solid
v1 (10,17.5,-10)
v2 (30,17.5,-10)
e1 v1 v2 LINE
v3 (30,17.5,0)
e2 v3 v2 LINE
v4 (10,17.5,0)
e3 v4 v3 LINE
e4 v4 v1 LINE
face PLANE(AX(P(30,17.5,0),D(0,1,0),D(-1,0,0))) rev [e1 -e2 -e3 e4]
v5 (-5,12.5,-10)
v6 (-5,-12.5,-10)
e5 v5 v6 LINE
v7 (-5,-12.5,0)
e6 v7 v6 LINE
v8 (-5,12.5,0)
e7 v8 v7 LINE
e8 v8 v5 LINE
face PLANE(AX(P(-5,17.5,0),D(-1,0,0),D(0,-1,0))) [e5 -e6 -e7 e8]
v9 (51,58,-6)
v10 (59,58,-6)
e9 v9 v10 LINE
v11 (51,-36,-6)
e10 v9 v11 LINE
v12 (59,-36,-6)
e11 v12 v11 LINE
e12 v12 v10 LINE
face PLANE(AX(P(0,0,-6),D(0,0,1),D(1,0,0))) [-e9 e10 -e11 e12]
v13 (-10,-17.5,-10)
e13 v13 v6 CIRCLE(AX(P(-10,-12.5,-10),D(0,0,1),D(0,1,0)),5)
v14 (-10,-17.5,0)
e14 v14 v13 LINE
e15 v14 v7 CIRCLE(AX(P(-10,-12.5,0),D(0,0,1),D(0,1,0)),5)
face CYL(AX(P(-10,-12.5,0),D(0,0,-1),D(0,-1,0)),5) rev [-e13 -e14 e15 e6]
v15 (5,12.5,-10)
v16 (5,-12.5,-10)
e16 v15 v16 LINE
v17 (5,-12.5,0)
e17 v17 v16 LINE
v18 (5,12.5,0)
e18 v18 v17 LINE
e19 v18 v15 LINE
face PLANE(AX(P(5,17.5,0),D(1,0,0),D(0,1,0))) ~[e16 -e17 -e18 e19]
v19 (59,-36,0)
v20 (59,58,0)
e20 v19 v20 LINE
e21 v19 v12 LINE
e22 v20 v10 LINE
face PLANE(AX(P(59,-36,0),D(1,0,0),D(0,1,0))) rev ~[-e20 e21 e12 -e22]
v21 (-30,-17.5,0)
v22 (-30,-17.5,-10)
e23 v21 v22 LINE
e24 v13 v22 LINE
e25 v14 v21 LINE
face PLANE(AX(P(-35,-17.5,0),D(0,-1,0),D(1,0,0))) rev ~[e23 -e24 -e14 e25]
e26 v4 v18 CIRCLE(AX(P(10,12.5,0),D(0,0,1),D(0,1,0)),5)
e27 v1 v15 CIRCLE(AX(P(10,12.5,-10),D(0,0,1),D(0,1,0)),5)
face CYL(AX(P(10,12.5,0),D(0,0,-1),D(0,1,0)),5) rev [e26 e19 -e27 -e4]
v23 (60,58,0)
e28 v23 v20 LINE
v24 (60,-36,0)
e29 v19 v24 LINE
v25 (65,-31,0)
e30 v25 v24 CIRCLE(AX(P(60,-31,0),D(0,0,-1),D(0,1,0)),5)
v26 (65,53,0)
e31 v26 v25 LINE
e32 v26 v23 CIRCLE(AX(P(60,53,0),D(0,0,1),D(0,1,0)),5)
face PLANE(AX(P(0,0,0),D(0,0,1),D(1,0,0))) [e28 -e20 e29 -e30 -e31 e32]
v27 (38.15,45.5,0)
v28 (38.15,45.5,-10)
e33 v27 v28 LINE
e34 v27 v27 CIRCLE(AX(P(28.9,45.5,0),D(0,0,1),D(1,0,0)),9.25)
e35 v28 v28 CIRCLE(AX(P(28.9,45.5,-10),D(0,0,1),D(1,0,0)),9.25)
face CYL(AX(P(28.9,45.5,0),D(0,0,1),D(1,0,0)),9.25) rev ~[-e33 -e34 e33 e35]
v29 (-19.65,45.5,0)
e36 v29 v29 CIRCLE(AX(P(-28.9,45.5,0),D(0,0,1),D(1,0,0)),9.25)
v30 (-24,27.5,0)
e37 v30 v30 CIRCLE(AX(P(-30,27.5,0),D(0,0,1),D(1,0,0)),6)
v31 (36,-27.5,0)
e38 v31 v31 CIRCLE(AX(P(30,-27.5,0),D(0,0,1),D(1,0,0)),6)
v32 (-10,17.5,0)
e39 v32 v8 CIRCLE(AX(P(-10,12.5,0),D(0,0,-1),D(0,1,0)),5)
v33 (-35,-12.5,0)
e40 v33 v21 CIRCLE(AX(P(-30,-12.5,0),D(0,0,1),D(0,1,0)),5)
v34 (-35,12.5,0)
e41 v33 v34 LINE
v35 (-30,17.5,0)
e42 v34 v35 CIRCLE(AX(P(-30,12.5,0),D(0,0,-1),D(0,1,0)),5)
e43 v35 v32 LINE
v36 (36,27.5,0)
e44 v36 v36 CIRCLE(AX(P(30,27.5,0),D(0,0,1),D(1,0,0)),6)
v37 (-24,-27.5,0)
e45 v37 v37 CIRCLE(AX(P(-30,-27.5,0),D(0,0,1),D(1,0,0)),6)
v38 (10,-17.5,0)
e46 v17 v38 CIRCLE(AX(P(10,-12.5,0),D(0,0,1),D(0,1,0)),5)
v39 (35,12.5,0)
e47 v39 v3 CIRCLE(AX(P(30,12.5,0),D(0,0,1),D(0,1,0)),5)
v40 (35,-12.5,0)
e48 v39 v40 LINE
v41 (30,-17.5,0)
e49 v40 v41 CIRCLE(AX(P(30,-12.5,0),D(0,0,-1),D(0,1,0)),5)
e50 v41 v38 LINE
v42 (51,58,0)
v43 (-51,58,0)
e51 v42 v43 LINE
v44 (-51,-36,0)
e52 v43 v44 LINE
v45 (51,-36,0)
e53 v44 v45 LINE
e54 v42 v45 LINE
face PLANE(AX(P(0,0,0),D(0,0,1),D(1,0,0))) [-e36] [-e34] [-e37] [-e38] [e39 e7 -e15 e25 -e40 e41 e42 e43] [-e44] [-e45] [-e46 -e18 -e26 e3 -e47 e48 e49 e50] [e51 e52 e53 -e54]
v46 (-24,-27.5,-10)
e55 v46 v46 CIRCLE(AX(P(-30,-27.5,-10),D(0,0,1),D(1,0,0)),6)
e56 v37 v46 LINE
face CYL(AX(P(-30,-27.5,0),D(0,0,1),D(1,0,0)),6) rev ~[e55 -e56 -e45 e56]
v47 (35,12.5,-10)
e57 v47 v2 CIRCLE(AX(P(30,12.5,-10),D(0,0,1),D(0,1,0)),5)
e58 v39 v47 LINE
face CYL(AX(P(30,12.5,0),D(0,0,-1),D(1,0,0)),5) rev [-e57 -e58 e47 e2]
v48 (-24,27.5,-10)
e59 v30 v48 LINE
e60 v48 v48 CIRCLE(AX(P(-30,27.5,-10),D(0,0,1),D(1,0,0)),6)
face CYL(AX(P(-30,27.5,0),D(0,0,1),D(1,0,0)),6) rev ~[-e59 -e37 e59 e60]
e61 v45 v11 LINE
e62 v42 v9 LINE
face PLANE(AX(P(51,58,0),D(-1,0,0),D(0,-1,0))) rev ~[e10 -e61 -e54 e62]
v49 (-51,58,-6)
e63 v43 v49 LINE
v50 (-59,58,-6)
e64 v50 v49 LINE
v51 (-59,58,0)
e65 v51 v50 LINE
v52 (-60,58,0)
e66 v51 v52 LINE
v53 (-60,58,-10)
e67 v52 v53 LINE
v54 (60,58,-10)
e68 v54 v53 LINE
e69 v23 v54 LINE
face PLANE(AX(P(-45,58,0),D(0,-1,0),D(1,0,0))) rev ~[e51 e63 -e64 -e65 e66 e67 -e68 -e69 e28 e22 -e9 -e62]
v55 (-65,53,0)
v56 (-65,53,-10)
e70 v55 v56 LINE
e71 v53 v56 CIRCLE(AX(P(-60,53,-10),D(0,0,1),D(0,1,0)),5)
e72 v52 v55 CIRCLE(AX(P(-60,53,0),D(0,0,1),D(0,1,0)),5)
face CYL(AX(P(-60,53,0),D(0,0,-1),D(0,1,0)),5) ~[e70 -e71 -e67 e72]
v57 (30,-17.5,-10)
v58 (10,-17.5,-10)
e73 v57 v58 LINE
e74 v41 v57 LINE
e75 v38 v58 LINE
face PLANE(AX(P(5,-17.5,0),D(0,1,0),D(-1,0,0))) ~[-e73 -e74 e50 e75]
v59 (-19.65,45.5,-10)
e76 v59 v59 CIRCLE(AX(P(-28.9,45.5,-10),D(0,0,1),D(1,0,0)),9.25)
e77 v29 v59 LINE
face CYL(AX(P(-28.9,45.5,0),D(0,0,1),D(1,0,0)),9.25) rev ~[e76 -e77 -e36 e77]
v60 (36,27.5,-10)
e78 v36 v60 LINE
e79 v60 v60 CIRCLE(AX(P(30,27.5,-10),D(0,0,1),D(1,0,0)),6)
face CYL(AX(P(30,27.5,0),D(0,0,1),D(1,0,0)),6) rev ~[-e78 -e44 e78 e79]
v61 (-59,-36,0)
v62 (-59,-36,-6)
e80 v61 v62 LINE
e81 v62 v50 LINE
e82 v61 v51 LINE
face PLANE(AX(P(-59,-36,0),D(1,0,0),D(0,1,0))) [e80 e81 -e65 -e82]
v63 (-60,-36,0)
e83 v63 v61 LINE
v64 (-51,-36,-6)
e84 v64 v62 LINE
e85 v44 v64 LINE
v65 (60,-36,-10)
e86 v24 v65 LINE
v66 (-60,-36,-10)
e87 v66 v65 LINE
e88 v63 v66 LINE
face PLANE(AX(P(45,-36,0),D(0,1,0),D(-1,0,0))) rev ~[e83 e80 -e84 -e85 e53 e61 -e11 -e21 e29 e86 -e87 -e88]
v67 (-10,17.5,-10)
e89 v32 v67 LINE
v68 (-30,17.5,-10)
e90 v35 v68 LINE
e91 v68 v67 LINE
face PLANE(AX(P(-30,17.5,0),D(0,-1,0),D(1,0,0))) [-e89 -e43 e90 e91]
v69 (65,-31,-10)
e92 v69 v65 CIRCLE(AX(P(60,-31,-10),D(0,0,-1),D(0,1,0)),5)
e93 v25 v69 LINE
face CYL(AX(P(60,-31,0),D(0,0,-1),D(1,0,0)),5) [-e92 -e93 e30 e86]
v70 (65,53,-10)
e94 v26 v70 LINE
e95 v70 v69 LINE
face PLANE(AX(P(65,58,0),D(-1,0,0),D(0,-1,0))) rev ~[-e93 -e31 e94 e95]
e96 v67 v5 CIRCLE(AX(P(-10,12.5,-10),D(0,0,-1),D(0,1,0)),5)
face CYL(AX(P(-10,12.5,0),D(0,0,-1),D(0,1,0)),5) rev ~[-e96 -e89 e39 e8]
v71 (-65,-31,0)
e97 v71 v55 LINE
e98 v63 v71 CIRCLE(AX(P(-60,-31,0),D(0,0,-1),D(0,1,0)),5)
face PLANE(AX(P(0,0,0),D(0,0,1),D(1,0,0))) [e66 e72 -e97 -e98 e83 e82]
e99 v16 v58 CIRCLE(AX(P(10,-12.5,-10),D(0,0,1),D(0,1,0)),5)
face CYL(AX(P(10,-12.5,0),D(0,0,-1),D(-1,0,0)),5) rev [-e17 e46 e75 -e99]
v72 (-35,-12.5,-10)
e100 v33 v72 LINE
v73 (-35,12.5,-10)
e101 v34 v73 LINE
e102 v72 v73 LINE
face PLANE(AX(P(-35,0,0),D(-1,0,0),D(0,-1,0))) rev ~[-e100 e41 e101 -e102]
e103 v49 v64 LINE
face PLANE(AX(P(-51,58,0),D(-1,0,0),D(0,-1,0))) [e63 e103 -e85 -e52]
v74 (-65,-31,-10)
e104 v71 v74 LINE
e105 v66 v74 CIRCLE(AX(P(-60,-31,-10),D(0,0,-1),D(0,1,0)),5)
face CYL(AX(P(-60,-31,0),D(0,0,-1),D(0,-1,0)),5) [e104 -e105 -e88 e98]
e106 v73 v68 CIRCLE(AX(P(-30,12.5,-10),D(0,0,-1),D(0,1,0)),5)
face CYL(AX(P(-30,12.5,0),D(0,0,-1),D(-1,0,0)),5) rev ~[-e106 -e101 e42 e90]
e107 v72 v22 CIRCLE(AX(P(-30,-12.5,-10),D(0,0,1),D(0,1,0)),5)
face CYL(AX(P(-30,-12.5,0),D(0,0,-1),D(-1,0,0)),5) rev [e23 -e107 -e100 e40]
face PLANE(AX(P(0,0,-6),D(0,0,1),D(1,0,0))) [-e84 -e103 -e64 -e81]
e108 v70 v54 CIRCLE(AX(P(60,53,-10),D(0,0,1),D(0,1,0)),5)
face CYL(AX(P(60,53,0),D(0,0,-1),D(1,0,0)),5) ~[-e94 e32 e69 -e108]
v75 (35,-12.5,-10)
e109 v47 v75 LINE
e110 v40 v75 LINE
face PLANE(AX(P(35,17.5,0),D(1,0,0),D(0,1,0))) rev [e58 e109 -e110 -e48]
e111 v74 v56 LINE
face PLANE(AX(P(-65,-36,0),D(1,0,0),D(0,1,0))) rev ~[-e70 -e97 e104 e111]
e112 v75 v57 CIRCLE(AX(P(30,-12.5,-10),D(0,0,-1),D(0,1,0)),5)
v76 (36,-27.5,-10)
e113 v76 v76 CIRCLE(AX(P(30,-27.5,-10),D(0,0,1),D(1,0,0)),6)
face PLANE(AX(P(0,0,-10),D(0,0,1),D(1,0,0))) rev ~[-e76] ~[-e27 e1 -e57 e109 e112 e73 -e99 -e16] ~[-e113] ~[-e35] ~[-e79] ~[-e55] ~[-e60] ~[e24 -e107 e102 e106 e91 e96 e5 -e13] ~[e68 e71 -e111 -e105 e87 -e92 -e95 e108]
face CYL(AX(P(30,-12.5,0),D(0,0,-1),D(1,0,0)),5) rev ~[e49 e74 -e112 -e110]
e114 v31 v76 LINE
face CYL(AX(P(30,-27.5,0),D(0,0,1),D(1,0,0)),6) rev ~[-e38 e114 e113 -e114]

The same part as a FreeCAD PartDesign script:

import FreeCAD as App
import Part
import Sketcher
from FreeCAD import Vector


def edges_at(feature, points):
    """Names of the edges that pass closest to the given points."""
    edges = feature.Shape.Edges
    near = lambda p: min(range(len(edges)), key=lambda i: edges[i].distToShape(Part.Vertex(*p))[0])
    return sorted({f"Edge{near(p) + 1}" for p in points})


def add_polygon(sketch, points):
    """Adds a closed chain of lines whose ends are joined by coincident constraints."""
    first, n = sketch.GeometryCount, len(points)
    for a, b in zip(points, points[1:] + points[:1]):
        sketch.addGeometry(Part.LineSegment(App.Vector(*a, 0), App.Vector(*b, 0)), False)
    for i in range(n):
        sketch.addConstraint(Sketcher.Constraint("Coincident", first + i, 2, first + (i + 1) % n, 1))

doc = App.newDocument("Part")
body = doc.addObject("PartDesign::Body", "Body")

sketch1 = doc.addObject("Sketcher::SketchObject", "Sketch")
body.addObject(sketch1)
sketch1.AttachmentSupport = (doc.XY_Plane, [""])
sketch1.MapMode = "FlatFace"
add_polygon(sketch1, [(65, -36), (65, 58), (-65, 58), (-65, -36)])
sketch1.addGeometry(Part.Circle(Vector(28.9, 45.5, 0), Vector(0, 0, 1), 9.25), False)
sketch1.addGeometry(Part.Circle(Vector(-28.9, 45.5, 0), Vector(0, 0, 1), 9.25), False)
sketch1.addConstraint([
    Sketcher.Constraint("Vertical", 0),
    Sketcher.Constraint("Horizontal", 1),
    Sketcher.Constraint("Vertical", 2),
    Sketcher.Constraint("Horizontal", 3),
    Sketcher.Constraint("Equal", 4, 5),
    Sketcher.Constraint("Symmetric", 4, 3, 5, 3, -2),
    Sketcher.Constraint("Diameter", 4, 18.5),
    Sketcher.Constraint("DistanceX", 5, 3, 4, 3, 57.8),
    Sketcher.Constraint("DistanceX", 1, 2, 1, 1, 130.0),
    Sketcher.Constraint("DistanceY", 0, 1, 0, 2, 94.0),
    Sketcher.Constraint("DistanceX", -1, 1, 0, 2, 65.0),
    Sketcher.Constraint("DistanceY", -1, 1, 0, 2, 58.0),
    Sketcher.Constraint("DistanceY", -1, 1, 4, 3, 45.5),
])
pad1 = doc.addObject("PartDesign::Pad", "Pad")
body.addObject(pad1)
pad1.Profile = sketch1
pad1.Length = 10
pad1.Reversed = True

sketch2 = doc.addObject("Sketcher::SketchObject", "Sketch001")
body.addObject(sketch2)
sketch2.AttachmentSupport = (doc.XY_Plane, [""])
sketch2.MapMode = "FlatFace"
sketch2.addGeometry([
    Part.Circle(Vector(-30, 27.5, 0), Vector(0, 0, 1), 6),
    Part.Circle(Vector(30, 27.5, 0), Vector(0, 0, 1), 6),
    Part.Circle(Vector(-30, -27.5, 0), Vector(0, 0, 1), 6),
    Part.Circle(Vector(30, -27.5, 0), Vector(0, 0, 1), 6),
], False)
sketch2.addConstraint([
    Sketcher.Constraint("Equal", 0, 1),
    Sketcher.Constraint("Equal", 1, 2),
    Sketcher.Constraint("Equal", 2, 3),
    Sketcher.Constraint("Symmetric", 1, 3, 2, 3, -1, 1),
    Sketcher.Constraint("Symmetric", 0, 3, 3, 3, -1, 1),
    Sketcher.Constraint("Symmetric", 0, 3, 1, 3, -2),
    Sketcher.Constraint("Diameter", 0, 12.0),
    Sketcher.Constraint("DistanceX", 0, 3, -1, 1, 30.0),
    Sketcher.Constraint("DistanceY", 2, 3, 0, 3, 55.0),
])
pocket1 = doc.addObject("PartDesign::Pocket", "Pocket")
body.addObject(pocket1)
pocket1.Profile = sketch2
pocket1.Type = "ThroughAll"

sketch3 = doc.addObject("Sketcher::SketchObject", "Sketch002")
body.addObject(sketch3)
sketch3.AttachmentSupport = (doc.XY_Plane, [""])
sketch3.MapMode = "FlatFace"
sketch3.addGeometry([
    Part.Circle(Vector(-30, 0, 0), Vector(0, 0, 1), 5),
    Part.Circle(Vector(-13, 7.5, 0), Vector(0, 0, 1), 5.5),
    Part.Circle(Vector(-13, -7.5, 0), Vector(0, 0, 1), 5.5),
], False)
sketch3.addConstraint([
    Sketcher.Constraint("Equal", 1, 2),
    Sketcher.Constraint("Symmetric", 1, 3, 2, 3, -1),
    Sketcher.Constraint("PointOnObject", 0, 3, -1),
    Sketcher.Constraint("Diameter", 0, 10.0),
    Sketcher.Constraint("Diameter", 1, 11.0),
    Sketcher.Constraint("DistanceX", 0, 3, -1, 1, 30.0),
    Sketcher.Constraint("DistanceX", 0, 3, 1, 3, 17.0),
    Sketcher.Constraint("DistanceY", 2, 3, 1, 3, 15.0),
])
pocket2 = doc.addObject("PartDesign::Pocket", "Pocket001")
body.addObject(pocket2)
pocket2.Profile = sketch3
pocket2.Type = "ThroughAll"

sketch4 = doc.addObject("Sketcher::SketchObject", "Sketch003")
body.addObject(sketch4)
sketch4.AttachmentSupport = (doc.XY_Plane, [""])
sketch4.MapMode = "FlatFace"
add_polygon(sketch4, [(-5, 17.5), (-35, 17.5), (-35, 0), (-35, -17.5), (-5, -17.5)])
sketch4.addGeometry(Part.Circle(Vector(-13, -7.5, 0), Vector(0, 0, 1), 5.5), False)
sketch4.addGeometry(Part.Circle(Vector(-30, 0, 0), Vector(0, 0, 1), 5), False)
sketch4.addGeometry(Part.Circle(Vector(-13, 7.5, 0), Vector(0, 0, 1), 5.5), False)
sketch4.addConstraint([
    Sketcher.Constraint("Horizontal", 0),
    Sketcher.Constraint("Vertical", 1),
    Sketcher.Constraint("Vertical", 2),
    Sketcher.Constraint("Horizontal", 3),
    Sketcher.Constraint("Vertical", 4),
    Sketcher.Constraint("Equal", 5, 7),
    Sketcher.Constraint("Symmetric", 5, 3, 7, 3, -1),
    Sketcher.Constraint("PointOnObject", 6, 3, -1),
    Sketcher.Constraint("PointOnObject", 1, 2, -1),
    Sketcher.Constraint("Equal", 1, 2),
    Sketcher.Constraint("Diameter", 5, 11.0),
    Sketcher.Constraint("Diameter", 6, 10.0),
    Sketcher.Constraint("DistanceX", 0, 2, 0, 1, 30.0),
    Sketcher.Constraint("DistanceX", 6, 3, -1, 1, 30.0),
    Sketcher.Constraint("DistanceX", 6, 3, 5, 3, 17.0),
    Sketcher.Constraint("DistanceY", 5, 3, 7, 3, 15.0),
    Sketcher.Constraint("DistanceX", 0, 2, 7, 3, 22.0),
    Sketcher.Constraint("DistanceY", 7, 3, 0, 2, 10.0),
])
pocket3 = doc.addObject("PartDesign::Pocket", "Pocket002")
body.addObject(pocket3)
pocket3.Profile = sketch4
pocket3.Type = "ThroughAll"
doc.recompute()

mirrored = doc.addObject("PartDesign::Mirrored", "Mirrored")
body.addObject(mirrored)
mirrored.Originals = [pocket2, pocket3]
mirrored.MirrorPlane = (doc.YZ_Plane, [""])
body.Tip = mirrored
doc.recompute()

fillet = doc.addObject("PartDesign::Fillet", "Fillet")
body.addObject(fillet)
fillet.Base = (mirrored, edges_at(mirrored, [
    (-35, 17.5, -5),
    (-5, 17.5, -5),
    (-35, -17.5, -5),
    (-5, -17.5, -5),
    (5, -17.5, -5),
    (5, 17.5, -5),
    (35, 17.5, -5),
    (35, -17.5, -5),
]))
fillet.Radius = 5

sketch5 = doc.addObject("Sketcher::SketchObject", "Sketch004")
body.addObject(sketch5)
sketch5.AttachmentSupport = (doc.XY_Plane, [""])
sketch5.MapMode = "FlatFace"
add_polygon(sketch5, [(-59, -36), (-51, -36), (-51, 58), (-59, 58)])
add_polygon(sketch5, [(51, 58), (51, -36), (59, -36), (59, 58)])
sketch5.addConstraint([
    Sketcher.Constraint("Horizontal", 0),
    Sketcher.Constraint("Vertical", 1),
    Sketcher.Constraint("Horizontal", 2),
    Sketcher.Constraint("Vertical", 3),
    Sketcher.Constraint("Vertical", 4),
    Sketcher.Constraint("Horizontal", 5),
    Sketcher.Constraint("Vertical", 6),
    Sketcher.Constraint("Horizontal", 7),
    Sketcher.Constraint("Symmetric", 0, 2, 4, 2, -2),
    Sketcher.Constraint("Symmetric", 2, 2, 6, 2, -2),
    Sketcher.Constraint("DistanceX", 0, 1, 0, 2, 8.0),
    Sketcher.Constraint("DistanceY", 1, 1, 1, 2, 94.0),
    Sketcher.Constraint("DistanceX", 0, 2, -1, 1, 51.0),
    Sketcher.Constraint("DistanceY", 0, 2, -1, 1, 36.0),
])
pocket4 = doc.addObject("PartDesign::Pocket", "Pocket003")
body.addObject(pocket4)
pocket4.Profile = sketch5
pocket4.Length = 6
doc.recompute()

fillet2 = doc.addObject("PartDesign::Fillet", "Fillet001")
body.addObject(fillet2)
fillet2.Base = (pocket4, edges_at(pocket4, [
    (-65, -36, -5),
    (65, -36, -5),
    (65, 58, -5),
    (-65, 58, -5),
]))
fillet2.Radius = 5

doc.recompute()
